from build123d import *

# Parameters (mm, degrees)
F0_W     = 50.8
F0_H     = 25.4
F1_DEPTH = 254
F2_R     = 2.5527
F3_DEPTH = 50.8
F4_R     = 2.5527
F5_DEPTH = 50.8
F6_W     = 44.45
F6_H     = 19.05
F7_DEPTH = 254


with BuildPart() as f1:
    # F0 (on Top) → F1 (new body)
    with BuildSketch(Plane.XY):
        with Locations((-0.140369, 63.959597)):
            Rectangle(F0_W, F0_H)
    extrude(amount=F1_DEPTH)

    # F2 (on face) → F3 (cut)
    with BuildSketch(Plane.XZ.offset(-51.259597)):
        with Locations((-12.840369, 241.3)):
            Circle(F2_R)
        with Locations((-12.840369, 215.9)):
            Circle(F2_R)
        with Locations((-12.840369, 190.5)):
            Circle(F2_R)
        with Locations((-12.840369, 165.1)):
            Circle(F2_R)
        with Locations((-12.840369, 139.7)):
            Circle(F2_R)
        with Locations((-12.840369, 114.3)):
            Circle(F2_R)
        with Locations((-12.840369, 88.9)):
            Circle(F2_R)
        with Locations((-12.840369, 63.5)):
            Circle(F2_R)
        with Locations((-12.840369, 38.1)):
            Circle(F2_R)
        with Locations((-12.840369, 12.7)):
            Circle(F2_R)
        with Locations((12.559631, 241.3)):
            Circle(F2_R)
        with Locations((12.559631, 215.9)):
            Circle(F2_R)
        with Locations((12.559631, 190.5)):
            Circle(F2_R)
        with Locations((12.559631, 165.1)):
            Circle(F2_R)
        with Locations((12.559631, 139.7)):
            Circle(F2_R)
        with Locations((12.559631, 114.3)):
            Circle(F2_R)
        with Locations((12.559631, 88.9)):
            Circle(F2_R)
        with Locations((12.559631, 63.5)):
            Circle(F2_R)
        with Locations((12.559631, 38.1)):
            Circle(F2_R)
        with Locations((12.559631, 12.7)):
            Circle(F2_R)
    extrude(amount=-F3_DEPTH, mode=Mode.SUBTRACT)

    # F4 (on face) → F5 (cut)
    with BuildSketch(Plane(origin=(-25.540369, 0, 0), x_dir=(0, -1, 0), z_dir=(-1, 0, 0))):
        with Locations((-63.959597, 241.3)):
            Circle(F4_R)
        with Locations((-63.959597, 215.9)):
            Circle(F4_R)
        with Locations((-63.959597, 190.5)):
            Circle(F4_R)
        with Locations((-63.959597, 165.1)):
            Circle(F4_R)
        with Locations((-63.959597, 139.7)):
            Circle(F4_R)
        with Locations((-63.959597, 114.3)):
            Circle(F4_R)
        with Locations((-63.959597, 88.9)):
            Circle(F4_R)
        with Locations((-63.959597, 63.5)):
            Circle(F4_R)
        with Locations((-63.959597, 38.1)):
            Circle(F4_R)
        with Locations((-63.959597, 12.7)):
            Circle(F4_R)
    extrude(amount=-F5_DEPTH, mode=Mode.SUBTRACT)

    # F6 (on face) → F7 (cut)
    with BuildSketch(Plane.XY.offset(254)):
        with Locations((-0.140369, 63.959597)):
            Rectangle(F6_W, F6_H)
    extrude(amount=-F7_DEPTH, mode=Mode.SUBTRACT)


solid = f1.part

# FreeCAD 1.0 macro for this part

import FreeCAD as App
import Part
import Sketcher
from FreeCAD import Vector
Q = App.Units.Quantity

doc = App.newDocument("Part")
body = doc.addObject("PartDesign::Body", "Body")

# Sketch on XY plane
sketch1 = body.newObject("Sketcher::SketchObject", "Sketch")
sketch1.AttachmentSupport = (doc.getObject("XY_Plane"), [""])
sketch1.MapMode = "FlatFace"
sketch1.addGeometry([
    Part.LineSegment(Vector(-26, 77, 0), Vector(-26, 51, 0)),
    Part.LineSegment(Vector(-26, 51, 0), Vector(25, 51, 0)),
    Part.LineSegment(Vector(25, 51, 0), Vector(25, 77, 0)),
    Part.LineSegment(Vector(25, 77, 0), Vector(-26, 77, 0)),
], False)
sketch1.addConstraint([
    Sketcher.Constraint("Coincident", 0, 2, 1, 1),
    Sketcher.Constraint("Coincident", 1, 2, 2, 1),
    Sketcher.Constraint("Coincident", 2, 2, 3, 1),
    Sketcher.Constraint("Coincident", 3, 2, 0, 1),
    Sketcher.Constraint("Vertical", 0),
    Sketcher.Constraint("Horizontal", 1),
    Sketcher.Constraint("Vertical", 2),
    Sketcher.Constraint("Horizontal", 3),
    Sketcher.Constraint("DistanceX", 1, 1, 1, 2, Q("2 in")),
    Sketcher.Constraint("DistanceY", 0, 2, 0, 1, Q("1 in")),
    Sketcher.Constraint("DistanceX", 0, 2, -1, 1, 25.540369),
    Sketcher.Constraint("DistanceY", -1, 1, 0, 2, 51.259597),
])
pad1 = body.newObject("PartDesign::Pad", "Pad")
pad1.Profile = sketch1
pad1.Length = Q("10 in")

# Sketch on XZ plane
sketch2 = body.newObject("Sketcher::SketchObject", "Sketch001")
sketch2.AttachmentSupport = (doc.getObject("XZ_Plane"), [""])
sketch2.MapMode = "FlatFace"
sketch2.AttachmentOffset = App.Placement(Vector(0, 0, -51.259597), App.Rotation())
sketch2.addGeometry([
    Part.Circle(Vector(-12.8, 241.3, 0), Vector(0, 0, 1), 2.6),  # 0
    Part.Circle(Vector(-12.8, 215.9, 0), Vector(0, 0, 1), 2.6),  # 1
    Part.Circle(Vector(-12.8, 190.5, 0), Vector(0, 0, 1), 2.6),  # 2
    Part.Circle(Vector(-12.8, 165.1, 0), Vector(0, 0, 1), 2.6),  # 3
    Part.Circle(Vector(-12.8, 139.7, 0), Vector(0, 0, 1), 2.6),  # 4
    Part.Circle(Vector(-12.8, 114.3, 0), Vector(0, 0, 1), 2.6),  # 5
    Part.Circle(Vector(-12.8, 88.9, 0), Vector(0, 0, 1), 2.6),  # 6
    Part.Circle(Vector(-12.8, 63.5, 0), Vector(0, 0, 1), 2.6),  # 7
    Part.Circle(Vector(-12.8, 38.1, 0), Vector(0, 0, 1), 2.6),  # 8
    Part.Circle(Vector(-12.8, 12.7, 0), Vector(0, 0, 1), 2.6),  # 9
    Part.Circle(Vector(12.6, 241.3, 0), Vector(0, 0, 1), 2.6),  # 10
    Part.Circle(Vector(12.6, 215.9, 0), Vector(0, 0, 1), 2.6),  # 11
    Part.Circle(Vector(12.6, 190.5, 0), Vector(0, 0, 1), 2.6),  # 12
    Part.Circle(Vector(12.6, 165.1, 0), Vector(0, 0, 1), 2.6),  # 13
    Part.Circle(Vector(12.6, 139.7, 0), Vector(0, 0, 1), 2.6),  # 14
    Part.Circle(Vector(12.6, 114.3, 0), Vector(0, 0, 1), 2.6),  # 15
    Part.Circle(Vector(12.6, 88.9, 0), Vector(0, 0, 1), 2.6),  # 16
    Part.Circle(Vector(12.6, 63.5, 0), Vector(0, 0, 1), 2.6),  # 17
    Part.Circle(Vector(12.6, 38.1, 0), Vector(0, 0, 1), 2.6),  # 18
    Part.Circle(Vector(12.6, 12.7, 0), Vector(0, 0, 1), 2.6),  # 19
], False)
sketch2.addConstraint([
    Sketcher.Constraint("Equal", 0, 1),
    Sketcher.Constraint("Equal", 1, 2),
    Sketcher.Constraint("Equal", 2, 3),
    Sketcher.Constraint("Equal", 3, 4),
    Sketcher.Constraint("Equal", 4, 5),
    Sketcher.Constraint("Equal", 5, 6),
    Sketcher.Constraint("Equal", 6, 7),
    Sketcher.Constraint("Equal", 7, 8),
    Sketcher.Constraint("Equal", 8, 9),
    Sketcher.Constraint("Equal", 9, 10),
    Sketcher.Constraint("Equal", 10, 11),
    Sketcher.Constraint("Equal", 11, 12),
    Sketcher.Constraint("Equal", 12, 13),
    Sketcher.Constraint("Equal", 13, 14),
    Sketcher.Constraint("Equal", 14, 15),
    Sketcher.Constraint("Equal", 15, 16),
    Sketcher.Constraint("Equal", 16, 17),
    Sketcher.Constraint("Equal", 17, 18),
    Sketcher.Constraint("Equal", 18, 19),
    Sketcher.Constraint("Horizontal", 0, 3, 10, 3),
    Sketcher.Constraint("Horizontal", 1, 3, 11, 3),
    Sketcher.Constraint("Horizontal", 2, 3, 12, 3),
    Sketcher.Constraint("Horizontal", 3, 3, 13, 3),
    Sketcher.Constraint("Horizontal", 4, 3, 14, 3),
    Sketcher.Constraint("Horizontal", 5, 3, 15, 3),
    Sketcher.Constraint("Horizontal", 6, 3, 16, 3),
    Sketcher.Constraint("Horizontal", 7, 3, 17, 3),
    Sketcher.Constraint("Horizontal", 8, 3, 18, 3),
    Sketcher.Constraint("Horizontal", 9, 3, 19, 3),
    Sketcher.Constraint("Vertical", 0, 3, 1, 3),
    Sketcher.Constraint("Vertical", 1, 3, 2, 3),
    Sketcher.Constraint("Vertical", 2, 3, 3, 3),
    Sketcher.Constraint("Vertical", 3, 3, 4, 3),
    Sketcher.Constraint("Vertical", 4, 3, 5, 3),
    Sketcher.Constraint("Vertical", 5, 3, 6, 3),
    Sketcher.Constraint("Vertical", 6, 3, 7, 3),
    Sketcher.Constraint("Vertical", 7, 3, 8, 3),
    Sketcher.Constraint("Vertical", 8, 3, 9, 3),
    Sketcher.Constraint("Vertical", 10, 3, 11, 3),
    Sketcher.Constraint("Vertical", 11, 3, 12, 3),
    Sketcher.Constraint("Vertical", 12, 3, 13, 3),
    Sketcher.Constraint("Vertical", 13, 3, 14, 3),
    Sketcher.Constraint("Vertical", 14, 3, 15, 3),
    Sketcher.Constraint("Vertical", 15, 3, 16, 3),
    Sketcher.Constraint("Vertical", 16, 3, 17, 3),
    Sketcher.Constraint("Vertical", 17, 3, 18, 3),
    Sketcher.Constraint("Vertical", 18, 3, 19, 3),
    Sketcher.Constraint("Diameter", 0, Q("0.201 in")),
    Sketcher.Constraint("DistanceY", 1, 3, 0, 3, Q("1 in")),
    Sketcher.Constraint("DistanceY", 2, 3, 1, 3, Q("1 in")),
    Sketcher.Constraint("DistanceY", 3, 3, 2, 3, Q("1 in")),
    Sketcher.Constraint("DistanceY", 4, 3, 3, 3, Q("1 in")),
    Sketcher.Constraint("DistanceY", 5, 3, 4, 3, Q("1 in")),
    Sketcher.Constraint("DistanceY", 6, 3, 5, 3, Q("1 in")),
    Sketcher.Constraint("DistanceY", 7, 3, 6, 3, Q("1 in")),
    Sketcher.Constraint("DistanceY", 8, 3, 7, 3, Q("1 in")),
    Sketcher.Constraint("DistanceY", 9, 3, 8, 3, Q("1 in")),
    Sketcher.Constraint("DistanceX", 0, 3, 10, 3, Q("1 in")),
    Sketcher.Constraint("DistanceY", -1, 1, 0, 3, Q("9.5 in")),
    Sketcher.Constraint("DistanceX", 0, 3, -1, 1, 12.840369),
])
pocket1 = body.newObject("PartDesign::Pocket", "Pocket")
pocket1.Profile = sketch2
pocket1.Length = Q("2 in")

# Sketch on YZ plane
sketch3 = body.newObject("Sketcher::SketchObject", "Sketch002")
sketch3.AttachmentSupport = (doc.getObject("YZ_Plane"), [""])
sketch3.MapMode = "FlatFace"
sketch3.AttachmentOffset = App.Placement(Vector(0, 0, -25.540369), App.Rotation())
sketch3.addGeometry([
    Part.Circle(Vector(64, 241.3, 0), Vector(0, 0, 1), 2.6),  # 0
    Part.Circle(Vector(64, 215.9, 0), Vector(0, 0, 1), 2.6),  # 1
    Part.Circle(Vector(64, 190.5, 0), Vector(0, 0, 1), 2.6),  # 2
    Part.Circle(Vector(64, 165.1, 0), Vector(0, 0, 1), 2.6),  # 3
    Part.Circle(Vector(64, 139.7, 0), Vector(0, 0, 1), 2.6),  # 4
    Part.Circle(Vector(64, 114.3, 0), Vector(0, 0, 1), 2.6),  # 5
    Part.Circle(Vector(64, 88.9, 0), Vector(0, 0, 1), 2.6),  # 6
    Part.Circle(Vector(64, 63.5, 0), Vector(0, 0, 1), 2.6),  # 7
    Part.Circle(Vector(64, 38.1, 0), Vector(0, 0, 1), 2.6),  # 8
    Part.Circle(Vector(64, 12.7, 0), Vector(0, 0, 1), 2.6),  # 9
], False)
sketch3.addConstraint([
    Sketcher.Constraint("Equal", 0, 1),
    Sketcher.Constraint("Equal", 1, 2),
    Sketcher.Constraint("Equal", 2, 3),
    Sketcher.Constraint("Equal", 3, 4),
    Sketcher.Constraint("Equal", 4, 5),
    Sketcher.Constraint("Equal", 5, 6),
    Sketcher.Constraint("Equal", 6, 7),
    Sketcher.Constraint("Equal", 7, 8),
    Sketcher.Constraint("Equal", 8, 9),
    Sketcher.Constraint("Vertical", 0, 3, 1, 3),
    Sketcher.Constraint("Vertical", 1, 3, 2, 3),
    Sketcher.Constraint("Vertical", 2, 3, 3, 3),
    Sketcher.Constraint("Vertical", 3, 3, 4, 3),
    Sketcher.Constraint("Vertical", 4, 3, 5, 3),
    Sketcher.Constraint("Vertical", 5, 3, 6, 3),
    Sketcher.Constraint("Vertical", 6, 3, 7, 3),
    Sketcher.Constraint("Vertical", 7, 3, 8, 3),
    Sketcher.Constraint("Vertical", 8, 3, 9, 3),
    Sketcher.Constraint("Diameter", 0, Q("0.201 in")),
    Sketcher.Constraint("DistanceY", 1, 3, 0, 3, Q("1 in")),
    Sketcher.Constraint("DistanceY", 2, 3, 1, 3, Q("1 in")),
    Sketcher.Constraint("DistanceY", 3, 3, 2, 3, Q("1 in")),
    Sketcher.Constraint("DistanceY", 4, 3, 3, 3, Q("1 in")),
    Sketcher.Constraint("DistanceY", 5, 3, 4, 3, Q("1 in")),
    Sketcher.Constraint("DistanceY", 6, 3, 5, 3, Q("1 in")),
    Sketcher.Constraint("DistanceY", 7, 3, 6, 3, Q("1 in")),
    Sketcher.Constraint("DistanceY", 8, 3, 7, 3, Q("1 in")),
    Sketcher.Constraint("DistanceY", 9, 3, 8, 3, Q("1 in")),
    Sketcher.Constraint("DistanceY", -1, 1, 0, 3, Q("9.5 in")),
    Sketcher.Constraint("DistanceX", -1, 1, 0, 3, 63.959597),
])
pocket2 = body.newObject("PartDesign::Pocket", "Pocket001")
pocket2.Profile = sketch3
pocket2.Length = Q("2 in")
pocket2.Reversed = True

# Sketch on XY plane
sketch4 = body.newObject("Sketcher::SketchObject", "Sketch003")
sketch4.AttachmentSupport = (doc.getObject("XY_Plane"), [""])
sketch4.MapMode = "FlatFace"
sketch4.AttachmentOffset = App.Placement(Vector(0, 0, 10 * 25.4), App.Rotation())
sketch4.addGeometry([
    Part.LineSegment(Vector(-22, 73, 0), Vector(-22, 54, 0)),
    Part.LineSegment(Vector(-22, 54, 0), Vector(22, 54, 0)),
    Part.LineSegment(Vector(22, 54, 0), Vector(22, 73, 0)),
    Part.LineSegment(Vector(22, 73, 0), Vector(-22, 73, 0)),
], False)
sketch4.addConstraint([
    Sketcher.Constraint("Coincident", 0, 2, 1, 1),
    Sketcher.Constraint("Coincident", 1, 2, 2, 1),
    Sketcher.Constraint("Coincident", 2, 2, 3, 1),
    Sketcher.Constraint("Coincident", 3, 2, 0, 1),
    Sketcher.Constraint("Vertical", 0),
    Sketcher.Constraint("Horizontal", 1),
    Sketcher.Constraint("Vertical", 2),
    Sketcher.Constraint("Horizontal", 3),
    Sketcher.Constraint("DistanceX", 1, 1, 1, 2, Q("1.75 in")),
    Sketcher.Constraint("DistanceY", 0, 2, 0, 1, Q("0.75 in")),
    Sketcher.Constraint("DistanceX", 0, 2, -1, 1, 22.365369),
    Sketcher.Constraint("DistanceY", -1, 1, 0, 2, 54.434597),
])
pocket3 = body.newObject("PartDesign::Pocket", "Pocket002")
pocket3.Profile = sketch4
pocket3.Length = Q("10 in")

doc.recompute()
